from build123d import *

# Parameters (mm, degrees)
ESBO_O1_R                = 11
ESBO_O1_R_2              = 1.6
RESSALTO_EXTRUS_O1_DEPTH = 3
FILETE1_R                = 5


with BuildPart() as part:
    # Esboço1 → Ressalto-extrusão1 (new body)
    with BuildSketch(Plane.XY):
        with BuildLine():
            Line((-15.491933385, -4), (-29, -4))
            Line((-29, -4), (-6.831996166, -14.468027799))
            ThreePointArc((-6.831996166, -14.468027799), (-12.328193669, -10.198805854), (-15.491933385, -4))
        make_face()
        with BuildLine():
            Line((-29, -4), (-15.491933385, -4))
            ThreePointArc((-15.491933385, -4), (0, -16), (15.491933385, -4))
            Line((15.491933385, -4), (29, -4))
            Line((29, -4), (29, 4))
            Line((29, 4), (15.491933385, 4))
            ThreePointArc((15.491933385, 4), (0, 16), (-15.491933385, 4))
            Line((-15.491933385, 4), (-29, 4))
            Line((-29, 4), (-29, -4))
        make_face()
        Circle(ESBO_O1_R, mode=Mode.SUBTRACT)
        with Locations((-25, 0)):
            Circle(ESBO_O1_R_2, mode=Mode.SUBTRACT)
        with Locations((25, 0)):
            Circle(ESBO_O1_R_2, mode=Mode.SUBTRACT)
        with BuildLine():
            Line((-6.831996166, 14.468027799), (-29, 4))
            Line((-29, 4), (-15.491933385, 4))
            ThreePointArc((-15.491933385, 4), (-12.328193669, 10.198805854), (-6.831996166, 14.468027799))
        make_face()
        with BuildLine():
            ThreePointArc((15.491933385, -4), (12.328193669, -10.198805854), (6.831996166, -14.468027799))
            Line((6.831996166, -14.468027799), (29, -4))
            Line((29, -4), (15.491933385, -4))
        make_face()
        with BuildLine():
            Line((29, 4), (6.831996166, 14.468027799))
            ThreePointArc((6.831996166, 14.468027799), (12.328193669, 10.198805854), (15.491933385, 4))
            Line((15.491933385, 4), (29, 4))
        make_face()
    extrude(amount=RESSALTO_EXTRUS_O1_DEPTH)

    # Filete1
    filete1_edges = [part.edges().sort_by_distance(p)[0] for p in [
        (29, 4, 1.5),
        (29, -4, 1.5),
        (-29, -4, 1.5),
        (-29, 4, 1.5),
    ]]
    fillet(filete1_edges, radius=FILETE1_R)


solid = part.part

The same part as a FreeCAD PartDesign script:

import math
import FreeCAD as App
import Part
import Sketcher
Q = App.Units.Quantity


def edges_at(feature, points):
    """Names of the edges that pass closest to the given points."""
    edges = feature.Shape.Edges
    near = lambda p: min(range(len(edges)), key=lambda i: edges[i].distToShape(Part.Vertex(*p))[0])
    return sorted({f"Edge{near(p) + 1}" for p in points})

doc = App.newDocument("Part")
body = doc.addObject("PartDesign::Body", "Body")

# Sketch on XY plane
sketch1 = doc.addObject("Sketcher::SketchObject", "Sketch")
body.addObject(sketch1)
sketch1.AttachmentSupport = (doc.XY_Plane, [""])
sketch1.MapMode = "FlatFace"
sketch1.addGeometry(Part.LineSegment(App.Vector(-29, -4, 0), App.Vector(-6.831996, -14.468028, 0)), False)
sketch1.addGeometry(Part.ArcOfCircle(Part.Circle(App.Vector(0, 0, 0), App.Vector(0, 0, 1), 16), math.radians(-115.277308), math.radians(-64.722692)), False)
sketch1.addGeometry(Part.LineSegment(App.Vector(6.831996, -14.468028, 0), App.Vector(29, -4, 0)), False)
sketch1.addGeometry(Part.LineSegment(App.Vector(29, -4, 0), App.Vector(29, 4, 0)), False)
sketch1.addGeometry(Part.LineSegment(App.Vector(29, 4, 0), App.Vector(6.831996, 14.468028, 0)), False)
sketch1.addGeometry(Part.ArcOfCircle(Part.Circle(App.Vector(0, 0, 0), App.Vector(0, 0, 1), 16), math.radians(64.722692), math.radians(115.277308)), False)
sketch1.addGeometry(Part.LineSegment(App.Vector(-6.831996, 14.468028, 0), App.Vector(-29, 4, 0)), False)
sketch1.addGeometry(Part.LineSegment(App.Vector(-29, 4, 0), App.Vector(-29, -4, 0)), False)
sketch1.addGeometry(Part.Circle(App.Vector(-25, 0, 0), App.Vector(0, 0, 1), 1.6), False)
sketch1.addGeometry(Part.Circle(App.Vector(0, 0, 0), App.Vector(0, 0, 1), 11), False)
sketch1.addGeometry(Part.Circle(App.Vector(25, 0, 0), App.Vector(0, 0, 1), 1.6), False)
sketch1.addConstraint(Sketcher.Constraint("Tangent", 0, 2, 1, 1))
sketch1.addConstraint(Sketcher.Constraint("Tangent", 1, 2, 2, 1))
sketch1.addConstraint(Sketcher.Constraint("Coincident", 2, 2, 3, 1))
sketch1.addConstraint(Sketcher.Constraint("Coincident", 3, 2, 4, 1))
sketch1.addConstraint(Sketcher.Constraint("Tangent", 4, 2, 5, 1))
sketch1.addConstraint(Sketcher.Constraint("Tangent", 5, 2, 6, 1))
sketch1.addConstraint(Sketcher.Constraint("Coincident", 6, 2, 7, 1))
sketch1.addConstraint(Sketcher.Constraint("Coincident", 7, 2, 0, 1))
sketch1.addConstraint(Sketcher.Constraint("Vertical", 3))
sketch1.addConstraint(Sketcher.Constraint("Vertical", 7))
sketch1.addConstraint(Sketcher.Constraint("Coincident", 1, 3, -1, 1))
sketch1.addConstraint(Sketcher.Constraint("Coincident", 5, 3, -1, 1))
sketch1.addConstraint(Sketcher.Constraint("Coincident", 9, 3, -1, 1))
sketch1.addConstraint(Sketcher.Constraint("Equal", 1, 5))
sketch1.addConstraint(Sketcher.Constraint("Equal", 8, 10))
sketch1.addConstraint(Sketcher.Constraint("Symmetric", 8, 3, 10, 3, -1, 1))
sketch1.addConstraint(Sketcher.Constraint("Symmetric", 2, 2, 6, 2, -1, 1))
sketch1.addConstraint(Sketcher.Constraint("PointOnObject", 8, 3, -1))
sketch1.addConstraint(Sketcher.Constraint("Parallel", 0, 4))
sketch1.addConstraint(Sketcher.Constraint("Horizontal", 0, 2, 1, 2))
sketch1.addConstraint(Sketcher.Constraint("Diameter", 9, Q("22 mm")))
sketch1.addConstraint(Sketcher.Constraint("Radius", 1, Q("16 mm")))
sketch1.addConstraint(Sketcher.Constraint("Diameter", 8, Q("3.2 mm")))
sketch1.addConstraint(Sketcher.Constraint("DistanceY", 3, 1, 3, 2, Q("8 mm")))
sketch1.addConstraint(Sketcher.Constraint("DistanceX", 8, 3, -1, 1, Q("25 mm")))
sketch1.addConstraint(Sketcher.Constraint("DistanceX", -1, 1, 2, 2, Q("29 mm")))
pad1 = doc.addObject("PartDesign::Pad", "Pad")
body.addObject(pad1)
pad1.Profile = sketch1
pad1.Length = 3
doc.recompute()

fillet = doc.addObject("PartDesign::Fillet", "Fillet")
body.addObject(fillet)
fillet.Base = (pad1, edges_at(pad1, [
    (29, 4, 1.5),
    (29, -4, 1.5),
    (-29, -4, 1.5),
    (-29, 4, 1.5),
]))
fillet.Radius = 5

doc.recompute()
